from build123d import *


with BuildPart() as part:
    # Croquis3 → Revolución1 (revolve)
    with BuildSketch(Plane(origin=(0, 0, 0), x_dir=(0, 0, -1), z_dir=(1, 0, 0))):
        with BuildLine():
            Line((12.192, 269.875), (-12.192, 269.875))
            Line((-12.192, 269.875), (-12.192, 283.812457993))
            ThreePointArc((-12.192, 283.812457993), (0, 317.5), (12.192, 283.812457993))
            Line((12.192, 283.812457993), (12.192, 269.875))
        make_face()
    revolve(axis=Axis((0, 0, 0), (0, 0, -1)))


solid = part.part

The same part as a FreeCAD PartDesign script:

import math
import FreeCAD as App
import Part
import Sketcher
from FreeCAD import Vector
Q = App.Units.Quantity

doc = App.newDocument("Part")
body = doc.addObject("PartDesign::Body", "Body")

# Sketch on YZ plane
sketch1 = doc.addObject("Sketcher::SketchObject", "Sketch")
body.addObject(sketch1)
sketch1.AttachmentSupport = (doc.YZ_Plane, [""])
sketch1.MapMode = "FlatFace"
sketch1.addGeometry([
    Part.LineSegment(Vector(269.875, 12.192, 0), Vector(269.875, -12.192, 0)),
    Part.LineSegment(Vector(269.875, -12.192, 0), Vector(283.812458, -12.192, 0)),
    Part.ArcOfCircle(Part.Circle(Vector(298.45, 0, 0), Vector(0, 0, 1), 19.05), math.radians(-140.208181), math.radians(140.208181)),
    Part.LineSegment(Vector(283.812458, 12.192, 0), Vector(269.875, 12.192, 0)),
], False)
sketch1.addConstraint([
    Sketcher.Constraint("Coincident", 0, 2, 1, 1),
    Sketcher.Constraint("Coincident", 1, 2, 2, 1),
    Sketcher.Constraint("Coincident", 2, 2, 3, 1),
    Sketcher.Constraint("Coincident", 3, 2, 0, 1),
    Sketcher.Constraint("Vertical", 0),
    Sketcher.Constraint("Horizontal", 1),
    Sketcher.Constraint("Horizontal", 3),
    Sketcher.Constraint("Symmetric", 1, 2, 2, 2, -1),
    Sketcher.Constraint("Radius", 2, Q("0.75 in")),
    Sketcher.Constraint("DistanceY", 0, 2, 0, 1, Q("0.96 in")),
    Sketcher.Constraint("DistanceX", -1, 1, 2, 3, Q("11.75 in")),
    Sketcher.Constraint("DistanceX", -1, 1, 0, 2, Q("10.625 in")),
])
revolution = doc.addObject("PartDesign::Revolution", "Revolution")
body.addObject(revolution)
revolution.Profile = sketch1
revolution.ReferenceAxis = (sketch1, ["V_Axis"])
revolution.Angle = 360

doc.recompute()
